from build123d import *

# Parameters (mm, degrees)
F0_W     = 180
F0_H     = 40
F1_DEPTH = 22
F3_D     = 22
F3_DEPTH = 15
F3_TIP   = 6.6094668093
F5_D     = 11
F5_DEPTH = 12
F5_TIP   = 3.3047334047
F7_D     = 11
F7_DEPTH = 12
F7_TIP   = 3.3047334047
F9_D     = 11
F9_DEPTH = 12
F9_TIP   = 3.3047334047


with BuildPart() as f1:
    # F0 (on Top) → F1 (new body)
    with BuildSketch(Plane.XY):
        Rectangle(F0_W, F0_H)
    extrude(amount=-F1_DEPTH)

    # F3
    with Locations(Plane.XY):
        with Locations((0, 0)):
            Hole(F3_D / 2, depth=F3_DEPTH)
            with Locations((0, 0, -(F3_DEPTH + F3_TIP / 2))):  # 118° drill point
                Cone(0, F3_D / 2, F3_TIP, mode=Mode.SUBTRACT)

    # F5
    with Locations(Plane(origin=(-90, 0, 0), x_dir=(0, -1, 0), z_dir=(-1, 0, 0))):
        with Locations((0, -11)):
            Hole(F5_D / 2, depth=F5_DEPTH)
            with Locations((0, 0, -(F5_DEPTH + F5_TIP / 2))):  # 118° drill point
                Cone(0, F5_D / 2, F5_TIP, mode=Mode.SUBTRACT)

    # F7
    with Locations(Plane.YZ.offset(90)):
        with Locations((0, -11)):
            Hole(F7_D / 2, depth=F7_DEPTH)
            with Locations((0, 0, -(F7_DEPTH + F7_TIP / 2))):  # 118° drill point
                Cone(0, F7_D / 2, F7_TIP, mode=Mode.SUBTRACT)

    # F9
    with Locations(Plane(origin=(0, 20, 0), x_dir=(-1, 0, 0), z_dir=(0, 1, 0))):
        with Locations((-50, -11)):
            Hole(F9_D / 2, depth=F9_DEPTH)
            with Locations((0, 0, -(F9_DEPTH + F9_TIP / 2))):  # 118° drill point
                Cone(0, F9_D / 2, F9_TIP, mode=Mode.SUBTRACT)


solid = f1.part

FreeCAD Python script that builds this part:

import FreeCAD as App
import Part
import Sketcher

V = App.Vector
Q = App.Units.Quantity

doc = App.newDocument("Part")
body = doc.addObject("PartDesign::Body", "Body")

sketch1 = doc.addObject("Sketcher::SketchObject", "Sketch")
body.addObject(sketch1)
sketch1.AttachmentSupport = (doc.XY_Plane, [""])
sketch1.MapMode = "FlatFace"
sketch1.addGeometry([
    Part.LineSegment(V(-90, 20, 0), V(-90, -20, 0)),
    Part.LineSegment(V(-90, -20, 0), V(90, -20, 0)),
    Part.LineSegment(V(90, -20, 0), V(90, 20, 0)),
    Part.LineSegment(V(90, 20, 0), V(-90, 20, 0)),
], False)
sketch1.addConstraint([
    Sketcher.Constraint("Coincident", 0, 2, 1, 1),
    Sketcher.Constraint("Coincident", 1, 2, 2, 1),
    Sketcher.Constraint("Coincident", 2, 2, 3, 1),
    Sketcher.Constraint("Coincident", 3, 2, 0, 1),
    Sketcher.Constraint("Vertical", 0),
    Sketcher.Constraint("Horizontal", 1),
    Sketcher.Constraint("Vertical", 2),
    Sketcher.Constraint("Horizontal", 3),
    Sketcher.Constraint("Symmetric", 0, 2, 2, 2, -1, 1),
    Sketcher.Constraint("DistanceX", 1, 1, 1, 2, Q("180 mm")),
    Sketcher.Constraint("DistanceY", 0, 2, 0, 1, Q("40 mm")),
])
pad1 = doc.addObject("PartDesign::Pad", "Pad")
body.addObject(pad1)
pad1.Profile = sketch1
pad1.Length = 22
pad1.Reversed = True

sketch2 = doc.addObject("Sketcher::SketchObject", "Sketch001")
body.addObject(sketch2)
sketch2.AttachmentSupport = (doc.XY_Plane, [""])
sketch2.MapMode = "FlatFace"
sketch2.addGeometry(Part.Circle(V(0, 0, 0), V(0, 0, 1), 11), False)
sketch2.addConstraint([
    Sketcher.Constraint("Coincident", 0, 3, -1, 1),
    Sketcher.Constraint("Diameter", 0, Q("22 mm")),
])
doc.recompute()
hole = doc.addObject("PartDesign::Hole", "Hole")
body.addObject(hole)
hole.Profile = sketch2
hole.ThreadType = "None"
hole.Diameter = 22
hole.DepthType = "Dimension"
hole.Depth = 15
hole.DrillPoint = "Angled"
hole.DrillPointAngle = 118

sketch3 = doc.addObject("Sketcher::SketchObject", "Sketch002")
body.addObject(sketch3)
sketch3.AttachmentSupport = (doc.YZ_Plane, [""])
sketch3.MapMode = "FlatFace"
sketch3.AttachmentOffset = App.Placement(V(0, 0, -90), App.Rotation())
sketch3.addGeometry(Part.Circle(V(0, -11, 0), V(0, 0, 1), 6), False)
sketch3.addConstraint([
    Sketcher.Constraint("PointOnObject", 0, 3, -2),
    Sketcher.Constraint("Diameter", 0, Q("11 mm")),
    Sketcher.Constraint("DistanceY", 0, 3, -1, 1, Q("11 mm")),
])
doc.recompute()
hole2 = doc.addObject("PartDesign::Hole", "Hole001")
body.addObject(hole2)
hole2.Profile = sketch3
hole2.ThreadType = "None"
hole2.Diameter = 11
hole2.DepthType = "Dimension"
hole2.Depth = 12
hole2.DrillPoint = "Angled"
hole2.DrillPointAngle = 118
hole2.Reversed = True

sketch4 = doc.addObject("Sketcher::SketchObject", "Sketch003")
body.addObject(sketch4)
sketch4.AttachmentSupport = (doc.YZ_Plane, [""])
sketch4.MapMode = "FlatFace"
sketch4.AttachmentOffset = App.Placement(V(0, 0, 90), App.Rotation())
sketch4.addGeometry(Part.Circle(V(0, -11, 0), V(0, 0, 1), 6), False)
sketch4.addConstraint([
    Sketcher.Constraint("PointOnObject", 0, 3, -2),
    Sketcher.Constraint("Diameter", 0, Q("11 mm")),
    Sketcher.Constraint("DistanceY", 0, 3, -1, 1, Q("11 mm")),
])
doc.recompute()
hole3 = doc.addObject("PartDesign::Hole", "Hole002")
body.addObject(hole3)
hole3.Profile = sketch4
hole3.ThreadType = "None"
hole3.Diameter = 11
hole3.DepthType = "Dimension"
hole3.Depth = 12
hole3.DrillPoint = "Angled"
hole3.DrillPointAngle = 118

sketch5 = doc.addObject("Sketcher::SketchObject", "Sketch004")
body.addObject(sketch5)
sketch5.AttachmentSupport = (doc.XZ_Plane, [""])
sketch5.MapMode = "FlatFace"
sketch5.AttachmentOffset = App.Placement(V(0, 0, -20), App.Rotation())
sketch5.addGeometry(Part.Circle(V(50, -11, 0), V(0, 0, 1), 6), False)
sketch5.addConstraint([
    Sketcher.Constraint("Diameter", 0, Q("11 mm")),
    Sketcher.Constraint("DistanceX", -1, 1, 0, 3, Q("50 mm")),
    Sketcher.Constraint("DistanceY", 0, 3, -1, 1, Q("11 mm")),
])
doc.recompute()
hole4 = doc.addObject("PartDesign::Hole", "Hole003")
body.addObject(hole4)
hole4.Profile = sketch5
hole4.ThreadType = "None"
hole4.Diameter = 11
hole4.DepthType = "Dimension"
hole4.Depth = 12
hole4.DrillPoint = "Angled"
hole4.DrillPointAngle = 118
hole4.Reversed = True

doc.recompute()
